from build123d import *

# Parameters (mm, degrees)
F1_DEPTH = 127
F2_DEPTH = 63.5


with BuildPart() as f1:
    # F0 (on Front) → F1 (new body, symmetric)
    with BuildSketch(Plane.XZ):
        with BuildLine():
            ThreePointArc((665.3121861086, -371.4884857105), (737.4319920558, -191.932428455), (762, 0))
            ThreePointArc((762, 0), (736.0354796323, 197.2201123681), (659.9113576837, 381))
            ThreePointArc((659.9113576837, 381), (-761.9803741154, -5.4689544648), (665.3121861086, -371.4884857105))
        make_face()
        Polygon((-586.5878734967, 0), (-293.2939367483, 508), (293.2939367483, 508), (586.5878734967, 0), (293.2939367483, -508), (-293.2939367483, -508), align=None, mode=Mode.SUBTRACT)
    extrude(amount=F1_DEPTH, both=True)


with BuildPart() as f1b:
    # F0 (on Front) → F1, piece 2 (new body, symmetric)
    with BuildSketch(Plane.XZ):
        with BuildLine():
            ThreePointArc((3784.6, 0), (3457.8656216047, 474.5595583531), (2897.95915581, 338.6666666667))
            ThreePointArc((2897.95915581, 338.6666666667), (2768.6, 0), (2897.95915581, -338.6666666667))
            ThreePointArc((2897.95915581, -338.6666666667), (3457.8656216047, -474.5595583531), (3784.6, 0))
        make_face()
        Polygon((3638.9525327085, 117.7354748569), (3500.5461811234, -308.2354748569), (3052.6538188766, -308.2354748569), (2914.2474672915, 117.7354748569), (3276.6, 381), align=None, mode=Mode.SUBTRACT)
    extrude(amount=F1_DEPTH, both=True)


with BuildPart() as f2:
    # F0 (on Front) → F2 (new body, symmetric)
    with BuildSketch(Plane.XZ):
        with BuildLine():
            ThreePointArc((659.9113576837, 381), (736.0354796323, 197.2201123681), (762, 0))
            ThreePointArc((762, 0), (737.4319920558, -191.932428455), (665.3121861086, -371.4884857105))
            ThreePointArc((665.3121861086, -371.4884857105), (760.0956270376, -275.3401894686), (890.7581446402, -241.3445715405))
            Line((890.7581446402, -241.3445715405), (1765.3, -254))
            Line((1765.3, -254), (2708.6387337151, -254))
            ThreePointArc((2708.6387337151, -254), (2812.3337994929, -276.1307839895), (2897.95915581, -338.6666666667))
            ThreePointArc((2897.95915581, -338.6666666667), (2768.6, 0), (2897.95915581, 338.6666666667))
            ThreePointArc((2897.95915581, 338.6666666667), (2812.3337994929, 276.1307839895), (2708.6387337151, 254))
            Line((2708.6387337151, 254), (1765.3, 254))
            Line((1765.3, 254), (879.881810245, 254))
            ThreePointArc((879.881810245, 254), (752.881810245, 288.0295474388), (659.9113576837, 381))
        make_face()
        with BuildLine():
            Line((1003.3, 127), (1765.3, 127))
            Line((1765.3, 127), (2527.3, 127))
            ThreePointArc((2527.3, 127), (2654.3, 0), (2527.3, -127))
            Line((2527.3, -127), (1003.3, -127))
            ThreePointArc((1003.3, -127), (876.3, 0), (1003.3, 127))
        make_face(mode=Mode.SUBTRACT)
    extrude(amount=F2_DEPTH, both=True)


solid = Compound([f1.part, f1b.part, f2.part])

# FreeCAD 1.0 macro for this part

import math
import FreeCAD as App
import Part
import Sketcher

V = App.Vector
Q = App.Units.Quantity


def add_polygon(sketch, points):
    """Adds a closed chain of lines whose ends are joined by coincident constraints."""
    first, n = sketch.GeometryCount, len(points)
    for a, b in zip(points, points[1:] + points[:1]):
        sketch.addGeometry(Part.LineSegment(App.Vector(*a, 0), App.Vector(*b, 0)), False)
    for i in range(n):
        sketch.addConstraint(Sketcher.Constraint("Coincident", first + i, 2, first + (i + 1) % n, 1))

doc = App.newDocument("Part")
body = doc.addObject("PartDesign::Body", "Body")

# Sketch on XZ plane
sketch1 = body.newObject("Sketcher::SketchObject", "Sketch")
sketch1.AttachmentSupport = (doc.getObject("XZ_Plane"), [""])
sketch1.MapMode = "FlatFace"
sketch1.addGeometry(Part.Circle(V(0, 0, 0), V(0, 0, 1), 762), False)  # 0
add_polygon(sketch1, [(-293, -508), (-587, 0), (-293, 508), (293, 508), (587, 0), (293, -508)])  # lines 1-6
sketch1.addConstraint(Sketcher.Constraint("Horizontal", 3))
sketch1.addConstraint(Sketcher.Constraint("Horizontal", 6))
sketch1.addConstraint(Sketcher.Constraint("Coincident", 0, 3, -1, 1))
sketch1.addConstraint(Sketcher.Constraint("Symmetric", 1, 2, 4, 2, -1, 1))
sketch1.addConstraint(Sketcher.Constraint("Symmetric", 2, 2, 5, 2, -1, 1))
sketch1.addConstraint(Sketcher.Constraint("PointOnObject", 1, 2, -1))
sketch1.addConstraint(Sketcher.Constraint("Parallel", 1, 4))
sketch1.addConstraint(Sketcher.Constraint("Vertical", 3, 2, 5, 2))
sketch1.addConstraint(Sketcher.Constraint("Diameter", 0, Q("60 in")))
sketch1.addConstraint(Sketcher.Constraint("DistanceY", -1, 1, 2, 2, Q("20 in")))
sketch1.addConstraint(Sketcher.Constraint("Angle", 1, Q("120 deg")))
sketch1.addConstraint(Sketcher.Constraint("DistanceX", 3, 1, 3, 2, Q("586.587873 mm")))
pad1 = body.newObject("PartDesign::Pad", "Pad")
pad1.Profile = sketch1
pad1.Length = Q("10 in")
pad1.Midplane = True
body2 = doc.addObject("PartDesign::Body", "Body001")

# Sketch on XZ plane
sketch2 = body2.newObject("Sketcher::SketchObject", "Sketch001")
sketch2.AttachmentSupport = (doc.getObject("XZ_Plane001"), [""])
sketch2.MapMode = "FlatFace"
sketch2.addGeometry(Part.Circle(V(3277, 0, 0), V(0, 0, 1), 508), False)  # 0
add_polygon(sketch2, [(3277, 381), (3639, 118), (3501, -308), (3053, -308), (2914, 118)])  # lines 1-5
sketch2.addConstraint(Sketcher.Constraint("Horizontal", 3))
sketch2.addConstraint(Sketcher.Constraint("PointOnObject", 0, 3, -1))
sketch2.addConstraint(Sketcher.Constraint("Horizontal", 1, 2, 4, 2))
sketch2.addConstraint(Sketcher.Constraint("Vertical", 0, 3, 5, 2))
sketch2.addConstraint(Sketcher.Constraint("Equal", 1, 2))
sketch2.addConstraint(Sketcher.Constraint("Equal", 2, 4))
sketch2.addConstraint(Sketcher.Constraint("Equal", 4, 5))
sketch2.addConstraint(Sketcher.Constraint("Diameter", 0, Q("40 in")))
sketch2.addConstraint(Sketcher.Constraint("DistanceX", -1, 1, 0, 3, Q("129 in")))
sketch2.addConstraint(Sketcher.Constraint("DistanceY", -1, 1, 5, 2, Q("15 in")))
sketch2.addConstraint(Sketcher.Constraint("Angle", 1, Q("-36 deg")))
sketch2.addConstraint(Sketcher.Constraint("Angle", 2, Q("-108 deg")))
sketch2.addConstraint(Sketcher.Constraint("DistanceX", 3, 2, 3, 1, Q("447.892362 mm")))
pad2 = body2.newObject("PartDesign::Pad", "Pad001")
pad2.Profile = sketch2
pad2.Length = Q("10 in")
pad2.Midplane = True
body3 = doc.addObject("PartDesign::Body", "Body002")

# Sketch on XZ plane
sketch3 = body3.newObject("Sketcher::SketchObject", "Sketch002")
sketch3.AttachmentSupport = (doc.getObject("XZ_Plane002"), [""])
sketch3.MapMode = "FlatFace"
sketch3.addGeometry(Part.ArcOfCircle(Part.Circle(V(0, 0, 0), V(0, 0, 1), 762), math.radians(-29), math.radians(30)), False)
sketch3.addGeometry(Part.ArcOfCircle(Part.Circle(V(887, -495, 0), V(0, 0, 1), 254), math.radians(89), math.radians(151)), False)
sketch3.addGeometry(Part.LineSegment(V(891, -241, 0), V(1765, -254, 0)), False)
sketch3.addGeometry(Part.LineSegment(V(1765, -254, 0), V(2709, -254, 0)), False)
sketch3.addGeometry(Part.ArcOfCircle(Part.Circle(V(2709, -508, 0), V(0, 0, 1), 254), math.radians(42), math.radians(90)), False)
sketch3.addGeometry(Part.ArcOfCircle(Part.Circle(V(3277, 0, 0), V(0, 0, 1), 508), math.radians(138), math.radians(222)), False)
sketch3.addGeometry(Part.ArcOfCircle(Part.Circle(V(2709, 508, 0), V(0, 0, 1), 254), math.radians(-90), math.radians(-42)), False)
sketch3.addGeometry(Part.LineSegment(V(2709, 254, 0), V(880, 254, 0)), False)
sketch3.addGeometry(Part.ArcOfCircle(Part.Circle(V(880, 508, 0), V(0, 0, 1), 254), math.radians(-150), math.radians(-90)), False)
sketch3.addGeometry(Part.ArcOfCircle(Part.Circle(V(1003, 0, 0), V(0, 0, 1), 127), math.radians(90), math.radians(270)), False)
sketch3.addGeometry(Part.LineSegment(V(1003, 127, 0), V(2527, 127, 0)), False)
sketch3.addGeometry(Part.ArcOfCircle(Part.Circle(V(2527, 0, 0), V(0, 0, 1), 127), math.radians(-90), math.radians(90)), False)
sketch3.addGeometry(Part.LineSegment(V(2527, -127, 0), V(1003, -127, 0)), False)
sketch3.addConstraint(Sketcher.Constraint("Tangent", 0, 1, 1, 2))
sketch3.addConstraint(Sketcher.Constraint("Tangent", 1, 1, 2, 1))
sketch3.addConstraint(Sketcher.Constraint("Coincident", 2, 2, 3, 1))
sketch3.addConstraint(Sketcher.Constraint("Tangent", 3, 2, 4, 2))
sketch3.addConstraint(Sketcher.Constraint("Tangent", 4, 1, 5, 2))
sketch3.addConstraint(Sketcher.Constraint("Tangent", 5, 1, 6, 2))
sketch3.addConstraint(Sketcher.Constraint("Tangent", 6, 1, 7, 1))
sketch3.addConstraint(Sketcher.Constraint("Tangent", 7, 2, 8, 2))
sketch3.addConstraint(Sketcher.Constraint("Tangent", 8, 1, 0, 2))
sketch3.addConstraint(Sketcher.Constraint("Tangent", 9, 1, 10, 1))
sketch3.addConstraint(Sketcher.Constraint("Tangent", 10, 2, 11, 2))
sketch3.addConstraint(Sketcher.Constraint("Tangent", 11, 1, 12, 1))
sketch3.addConstraint(Sketcher.Constraint("Tangent", 12, 2, 9, 2))
sketch3.addConstraint(Sketcher.Constraint("Horizontal", 3))
sketch3.addConstraint(Sketcher.Constraint("Horizontal", 7))
sketch3.addConstraint(Sketcher.Constraint("Horizontal", 10))
sketch3.addConstraint(Sketcher.Constraint("Horizontal", 12))
sketch3.addConstraint(Sketcher.Constraint("Coincident", 0, 3, -1, 1))
sketch3.addConstraint(Sketcher.Constraint("Equal", 1, 4))
sketch3.addConstraint(Sketcher.Constraint("Equal", 4, 6))
sketch3.addConstraint(Sketcher.Constraint("Equal", 6, 8))
sketch3.addConstraint(Sketcher.Constraint("Symmetric", 4, 3, 6, 3, -1))
sketch3.addConstraint(Sketcher.Constraint("PointOnObject", 9, 3, -1))
sketch3.addConstraint(Sketcher.Constraint("Radius", 0, Q("30 in")))
sketch3.addConstraint(Sketcher.Constraint("Radius", 1, Q("10 in")))
sketch3.addConstraint(Sketcher.Constraint("Radius", 5, Q("20 in")))
sketch3.addConstraint(Sketcher.Constraint("Radius", 9, Q("5 in")))
sketch3.addConstraint(Sketcher.Constraint("DistanceX", 10, 1, 10, 2, Q("60 in")))
sketch3.addConstraint(Sketcher.Constraint("DistanceY", 4, 3, -1, 1, Q("20 in")))
sketch3.addConstraint(Sketcher.Constraint("DistanceX", -1, 1, 5, 3, Q("129 in")))
sketch3.addConstraint(Sketcher.Constraint("DistanceX", 9, 3, 2, 2, Q("30 in")))
sketch3.addConstraint(Sketcher.Constraint("DistanceX", -1, 1, 9, 3, Q("39.5 in")))
sketch3.addConstraint(Sketcher.Constraint("Distance", 2, Q("874.633418 mm")))
pad3 = body3.newObject("PartDesign::Pad", "Pad002")
pad3.Profile = sketch3
pad3.Length = Q("5 in")
pad3.Midplane = True

doc.recompute()
